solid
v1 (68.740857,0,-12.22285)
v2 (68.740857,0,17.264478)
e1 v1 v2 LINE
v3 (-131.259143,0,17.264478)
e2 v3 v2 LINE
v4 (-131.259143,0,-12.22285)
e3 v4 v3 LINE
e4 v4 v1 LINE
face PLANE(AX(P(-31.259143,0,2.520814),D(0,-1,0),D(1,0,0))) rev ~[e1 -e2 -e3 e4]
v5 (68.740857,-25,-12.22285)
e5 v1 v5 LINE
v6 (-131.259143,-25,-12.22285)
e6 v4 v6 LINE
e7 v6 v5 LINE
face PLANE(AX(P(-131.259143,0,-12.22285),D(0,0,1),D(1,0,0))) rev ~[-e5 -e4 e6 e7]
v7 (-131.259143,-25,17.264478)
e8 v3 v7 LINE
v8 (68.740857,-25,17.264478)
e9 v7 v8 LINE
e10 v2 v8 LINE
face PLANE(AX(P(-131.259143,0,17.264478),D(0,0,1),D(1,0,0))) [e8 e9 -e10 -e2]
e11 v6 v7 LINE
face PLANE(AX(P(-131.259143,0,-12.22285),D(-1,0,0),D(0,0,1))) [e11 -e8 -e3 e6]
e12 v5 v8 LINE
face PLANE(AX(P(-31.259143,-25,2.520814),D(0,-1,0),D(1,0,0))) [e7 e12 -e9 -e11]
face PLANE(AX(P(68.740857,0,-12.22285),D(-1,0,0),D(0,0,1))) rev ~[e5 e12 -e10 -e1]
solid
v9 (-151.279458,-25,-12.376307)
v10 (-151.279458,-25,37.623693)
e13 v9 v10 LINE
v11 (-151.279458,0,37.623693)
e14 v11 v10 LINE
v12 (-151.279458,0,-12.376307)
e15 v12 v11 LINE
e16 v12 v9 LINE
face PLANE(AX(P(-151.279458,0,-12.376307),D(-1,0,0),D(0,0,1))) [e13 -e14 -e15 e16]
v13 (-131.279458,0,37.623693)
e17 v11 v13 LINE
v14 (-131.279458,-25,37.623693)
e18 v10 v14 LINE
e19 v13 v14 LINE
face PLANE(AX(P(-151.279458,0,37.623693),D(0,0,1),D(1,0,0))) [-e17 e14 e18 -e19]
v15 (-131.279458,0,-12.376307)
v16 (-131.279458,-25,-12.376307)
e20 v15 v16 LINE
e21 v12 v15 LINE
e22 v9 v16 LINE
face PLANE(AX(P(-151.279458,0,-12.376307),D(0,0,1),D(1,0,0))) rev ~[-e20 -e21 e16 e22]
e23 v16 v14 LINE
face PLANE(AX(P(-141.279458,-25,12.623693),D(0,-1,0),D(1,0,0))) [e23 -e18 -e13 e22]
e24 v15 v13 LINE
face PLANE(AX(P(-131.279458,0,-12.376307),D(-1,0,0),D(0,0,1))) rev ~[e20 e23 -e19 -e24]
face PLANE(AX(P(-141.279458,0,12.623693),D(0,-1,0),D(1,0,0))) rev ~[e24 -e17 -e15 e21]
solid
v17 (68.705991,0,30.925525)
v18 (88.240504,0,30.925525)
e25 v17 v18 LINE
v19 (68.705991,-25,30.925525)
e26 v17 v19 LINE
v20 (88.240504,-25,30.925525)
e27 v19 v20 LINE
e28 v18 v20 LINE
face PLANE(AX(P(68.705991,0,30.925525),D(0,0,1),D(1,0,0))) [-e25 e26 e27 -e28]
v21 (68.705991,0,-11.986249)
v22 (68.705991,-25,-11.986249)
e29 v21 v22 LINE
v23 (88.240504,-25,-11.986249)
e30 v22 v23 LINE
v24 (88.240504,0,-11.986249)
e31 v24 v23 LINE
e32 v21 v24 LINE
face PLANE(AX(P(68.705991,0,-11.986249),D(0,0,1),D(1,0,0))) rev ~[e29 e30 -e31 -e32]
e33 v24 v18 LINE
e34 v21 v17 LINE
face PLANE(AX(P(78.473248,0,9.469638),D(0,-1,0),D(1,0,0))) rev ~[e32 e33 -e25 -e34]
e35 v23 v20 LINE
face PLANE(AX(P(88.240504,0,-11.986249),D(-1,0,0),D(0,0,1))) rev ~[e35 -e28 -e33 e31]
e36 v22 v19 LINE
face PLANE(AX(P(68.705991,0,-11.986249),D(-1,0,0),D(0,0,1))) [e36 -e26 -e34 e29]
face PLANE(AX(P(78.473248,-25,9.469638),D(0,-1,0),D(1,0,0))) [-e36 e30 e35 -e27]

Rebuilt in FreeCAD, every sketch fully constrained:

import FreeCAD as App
import Part
import Sketcher

V = App.Vector

doc = App.newDocument("Part")
body = doc.addObject("PartDesign::Body", "Body")

sketch1 = body.newObject("Sketcher::SketchObject", "Sketch")
sketch1.AttachmentSupport = (doc.getObject("XZ_Plane"), [""])
sketch1.MapMode = "FlatFace"
sketch1.addGeometry([
    Part.LineSegment(V(-151, 38, 0), V(-151, -12, 0)),
    Part.LineSegment(V(-151, -12, 0), V(-131, -12, 0)),
    Part.LineSegment(V(-131, -12, 0), V(-131, 38, 0)),
    Part.LineSegment(V(-131, 38, 0), V(-151, 38, 0)),
], False)
sketch1.addConstraint([
    Sketcher.Constraint("Coincident", 0, 2, 1, 1),
    Sketcher.Constraint("Coincident", 1, 2, 2, 1),
    Sketcher.Constraint("Coincident", 2, 2, 3, 1),
    Sketcher.Constraint("Coincident", 3, 2, 0, 1),
    Sketcher.Constraint("Vertical", 0),
    Sketcher.Constraint("Horizontal", 1),
    Sketcher.Constraint("Vertical", 2),
    Sketcher.Constraint("Horizontal", 3),
    Sketcher.Constraint("DistanceX", 1, 1, 1, 2, 20.0),
    Sketcher.Constraint("DistanceY", 0, 2, 0, 1, 50.0),
    Sketcher.Constraint("DistanceX", 0, 2, -1, 1, 151.279458),
    Sketcher.Constraint("DistanceY", 0, 2, -1, 1, 12.376307),
])
pad1 = body.newObject("PartDesign::Pad", "Pad")
pad1.Profile = sketch1
pad1.Length = 25
body2 = doc.addObject("PartDesign::Body", "Body001")

sketch2 = body2.newObject("Sketcher::SketchObject", "Sketch001")
sketch2.AttachmentSupport = (doc.getObject("XZ_Plane001"), [""])
sketch2.MapMode = "FlatFace"
sketch2.addGeometry([
    Part.LineSegment(V(-131, 17, 0), V(-131, -12, 0)),
    Part.LineSegment(V(-131, -12, 0), V(69, -12, 0)),
    Part.LineSegment(V(69, -12, 0), V(69, 17, 0)),
    Part.LineSegment(V(69, 17, 0), V(-131, 17, 0)),
], False)
sketch2.addConstraint([
    Sketcher.Constraint("Coincident", 0, 2, 1, 1),
    Sketcher.Constraint("Coincident", 1, 2, 2, 1),
    Sketcher.Constraint("Coincident", 2, 2, 3, 1),
    Sketcher.Constraint("Coincident", 3, 2, 0, 1),
    Sketcher.Constraint("Vertical", 0),
    Sketcher.Constraint("Horizontal", 1),
    Sketcher.Constraint("Vertical", 2),
    Sketcher.Constraint("Horizontal", 3),
    Sketcher.Constraint("DistanceX", 1, 1, 1, 2, 200.0),
    Sketcher.Constraint("DistanceY", 0, 2, 0, 1, 29.487328),
    Sketcher.Constraint("DistanceY", 0, 2, -1, 1, 12.22285),
    Sketcher.Constraint("DistanceX", 0, 2, -1, 1, 131.259143),
])
pad2 = body2.newObject("PartDesign::Pad", "Pad001")
pad2.Profile = sketch2
pad2.Length = 25
body3 = doc.addObject("PartDesign::Body", "Body002")

sketch3 = body3.newObject("Sketcher::SketchObject", "Sketch002")
sketch3.AttachmentSupport = (doc.getObject("XZ_Plane002"), [""])
sketch3.MapMode = "FlatFace"
sketch3.addGeometry([
    Part.LineSegment(V(69, 31, 0), V(69, -12, 0)),
    Part.LineSegment(V(69, -12, 0), V(88, -12, 0)),
    Part.LineSegment(V(88, -12, 0), V(88, 31, 0)),
    Part.LineSegment(V(88, 31, 0), V(69, 31, 0)),
], False)
sketch3.addConstraint([
    Sketcher.Constraint("Coincident", 0, 2, 1, 1),
    Sketcher.Constraint("Coincident", 1, 2, 2, 1),
    Sketcher.Constraint("Coincident", 2, 2, 3, 1),
    Sketcher.Constraint("Coincident", 3, 2, 0, 1),
    Sketcher.Constraint("Vertical", 0),
    Sketcher.Constraint("Horizontal", 1),
    Sketcher.Constraint("Vertical", 2),
    Sketcher.Constraint("Horizontal", 3),
    Sketcher.Constraint("DistanceX", 1, 1, 1, 2, 19.534513),
    Sketcher.Constraint("DistanceY", 0, 2, 0, 1, 42.911774),
    Sketcher.Constraint("DistanceX", -1, 1, 0, 2, 68.705991),
    Sketcher.Constraint("DistanceY", 0, 2, -1, 1, 11.986249),
])
pad3 = body3.newObject("PartDesign::Pad", "Pad002")
pad3.Profile = sketch3
pad3.Length = 25

doc.recompute()
